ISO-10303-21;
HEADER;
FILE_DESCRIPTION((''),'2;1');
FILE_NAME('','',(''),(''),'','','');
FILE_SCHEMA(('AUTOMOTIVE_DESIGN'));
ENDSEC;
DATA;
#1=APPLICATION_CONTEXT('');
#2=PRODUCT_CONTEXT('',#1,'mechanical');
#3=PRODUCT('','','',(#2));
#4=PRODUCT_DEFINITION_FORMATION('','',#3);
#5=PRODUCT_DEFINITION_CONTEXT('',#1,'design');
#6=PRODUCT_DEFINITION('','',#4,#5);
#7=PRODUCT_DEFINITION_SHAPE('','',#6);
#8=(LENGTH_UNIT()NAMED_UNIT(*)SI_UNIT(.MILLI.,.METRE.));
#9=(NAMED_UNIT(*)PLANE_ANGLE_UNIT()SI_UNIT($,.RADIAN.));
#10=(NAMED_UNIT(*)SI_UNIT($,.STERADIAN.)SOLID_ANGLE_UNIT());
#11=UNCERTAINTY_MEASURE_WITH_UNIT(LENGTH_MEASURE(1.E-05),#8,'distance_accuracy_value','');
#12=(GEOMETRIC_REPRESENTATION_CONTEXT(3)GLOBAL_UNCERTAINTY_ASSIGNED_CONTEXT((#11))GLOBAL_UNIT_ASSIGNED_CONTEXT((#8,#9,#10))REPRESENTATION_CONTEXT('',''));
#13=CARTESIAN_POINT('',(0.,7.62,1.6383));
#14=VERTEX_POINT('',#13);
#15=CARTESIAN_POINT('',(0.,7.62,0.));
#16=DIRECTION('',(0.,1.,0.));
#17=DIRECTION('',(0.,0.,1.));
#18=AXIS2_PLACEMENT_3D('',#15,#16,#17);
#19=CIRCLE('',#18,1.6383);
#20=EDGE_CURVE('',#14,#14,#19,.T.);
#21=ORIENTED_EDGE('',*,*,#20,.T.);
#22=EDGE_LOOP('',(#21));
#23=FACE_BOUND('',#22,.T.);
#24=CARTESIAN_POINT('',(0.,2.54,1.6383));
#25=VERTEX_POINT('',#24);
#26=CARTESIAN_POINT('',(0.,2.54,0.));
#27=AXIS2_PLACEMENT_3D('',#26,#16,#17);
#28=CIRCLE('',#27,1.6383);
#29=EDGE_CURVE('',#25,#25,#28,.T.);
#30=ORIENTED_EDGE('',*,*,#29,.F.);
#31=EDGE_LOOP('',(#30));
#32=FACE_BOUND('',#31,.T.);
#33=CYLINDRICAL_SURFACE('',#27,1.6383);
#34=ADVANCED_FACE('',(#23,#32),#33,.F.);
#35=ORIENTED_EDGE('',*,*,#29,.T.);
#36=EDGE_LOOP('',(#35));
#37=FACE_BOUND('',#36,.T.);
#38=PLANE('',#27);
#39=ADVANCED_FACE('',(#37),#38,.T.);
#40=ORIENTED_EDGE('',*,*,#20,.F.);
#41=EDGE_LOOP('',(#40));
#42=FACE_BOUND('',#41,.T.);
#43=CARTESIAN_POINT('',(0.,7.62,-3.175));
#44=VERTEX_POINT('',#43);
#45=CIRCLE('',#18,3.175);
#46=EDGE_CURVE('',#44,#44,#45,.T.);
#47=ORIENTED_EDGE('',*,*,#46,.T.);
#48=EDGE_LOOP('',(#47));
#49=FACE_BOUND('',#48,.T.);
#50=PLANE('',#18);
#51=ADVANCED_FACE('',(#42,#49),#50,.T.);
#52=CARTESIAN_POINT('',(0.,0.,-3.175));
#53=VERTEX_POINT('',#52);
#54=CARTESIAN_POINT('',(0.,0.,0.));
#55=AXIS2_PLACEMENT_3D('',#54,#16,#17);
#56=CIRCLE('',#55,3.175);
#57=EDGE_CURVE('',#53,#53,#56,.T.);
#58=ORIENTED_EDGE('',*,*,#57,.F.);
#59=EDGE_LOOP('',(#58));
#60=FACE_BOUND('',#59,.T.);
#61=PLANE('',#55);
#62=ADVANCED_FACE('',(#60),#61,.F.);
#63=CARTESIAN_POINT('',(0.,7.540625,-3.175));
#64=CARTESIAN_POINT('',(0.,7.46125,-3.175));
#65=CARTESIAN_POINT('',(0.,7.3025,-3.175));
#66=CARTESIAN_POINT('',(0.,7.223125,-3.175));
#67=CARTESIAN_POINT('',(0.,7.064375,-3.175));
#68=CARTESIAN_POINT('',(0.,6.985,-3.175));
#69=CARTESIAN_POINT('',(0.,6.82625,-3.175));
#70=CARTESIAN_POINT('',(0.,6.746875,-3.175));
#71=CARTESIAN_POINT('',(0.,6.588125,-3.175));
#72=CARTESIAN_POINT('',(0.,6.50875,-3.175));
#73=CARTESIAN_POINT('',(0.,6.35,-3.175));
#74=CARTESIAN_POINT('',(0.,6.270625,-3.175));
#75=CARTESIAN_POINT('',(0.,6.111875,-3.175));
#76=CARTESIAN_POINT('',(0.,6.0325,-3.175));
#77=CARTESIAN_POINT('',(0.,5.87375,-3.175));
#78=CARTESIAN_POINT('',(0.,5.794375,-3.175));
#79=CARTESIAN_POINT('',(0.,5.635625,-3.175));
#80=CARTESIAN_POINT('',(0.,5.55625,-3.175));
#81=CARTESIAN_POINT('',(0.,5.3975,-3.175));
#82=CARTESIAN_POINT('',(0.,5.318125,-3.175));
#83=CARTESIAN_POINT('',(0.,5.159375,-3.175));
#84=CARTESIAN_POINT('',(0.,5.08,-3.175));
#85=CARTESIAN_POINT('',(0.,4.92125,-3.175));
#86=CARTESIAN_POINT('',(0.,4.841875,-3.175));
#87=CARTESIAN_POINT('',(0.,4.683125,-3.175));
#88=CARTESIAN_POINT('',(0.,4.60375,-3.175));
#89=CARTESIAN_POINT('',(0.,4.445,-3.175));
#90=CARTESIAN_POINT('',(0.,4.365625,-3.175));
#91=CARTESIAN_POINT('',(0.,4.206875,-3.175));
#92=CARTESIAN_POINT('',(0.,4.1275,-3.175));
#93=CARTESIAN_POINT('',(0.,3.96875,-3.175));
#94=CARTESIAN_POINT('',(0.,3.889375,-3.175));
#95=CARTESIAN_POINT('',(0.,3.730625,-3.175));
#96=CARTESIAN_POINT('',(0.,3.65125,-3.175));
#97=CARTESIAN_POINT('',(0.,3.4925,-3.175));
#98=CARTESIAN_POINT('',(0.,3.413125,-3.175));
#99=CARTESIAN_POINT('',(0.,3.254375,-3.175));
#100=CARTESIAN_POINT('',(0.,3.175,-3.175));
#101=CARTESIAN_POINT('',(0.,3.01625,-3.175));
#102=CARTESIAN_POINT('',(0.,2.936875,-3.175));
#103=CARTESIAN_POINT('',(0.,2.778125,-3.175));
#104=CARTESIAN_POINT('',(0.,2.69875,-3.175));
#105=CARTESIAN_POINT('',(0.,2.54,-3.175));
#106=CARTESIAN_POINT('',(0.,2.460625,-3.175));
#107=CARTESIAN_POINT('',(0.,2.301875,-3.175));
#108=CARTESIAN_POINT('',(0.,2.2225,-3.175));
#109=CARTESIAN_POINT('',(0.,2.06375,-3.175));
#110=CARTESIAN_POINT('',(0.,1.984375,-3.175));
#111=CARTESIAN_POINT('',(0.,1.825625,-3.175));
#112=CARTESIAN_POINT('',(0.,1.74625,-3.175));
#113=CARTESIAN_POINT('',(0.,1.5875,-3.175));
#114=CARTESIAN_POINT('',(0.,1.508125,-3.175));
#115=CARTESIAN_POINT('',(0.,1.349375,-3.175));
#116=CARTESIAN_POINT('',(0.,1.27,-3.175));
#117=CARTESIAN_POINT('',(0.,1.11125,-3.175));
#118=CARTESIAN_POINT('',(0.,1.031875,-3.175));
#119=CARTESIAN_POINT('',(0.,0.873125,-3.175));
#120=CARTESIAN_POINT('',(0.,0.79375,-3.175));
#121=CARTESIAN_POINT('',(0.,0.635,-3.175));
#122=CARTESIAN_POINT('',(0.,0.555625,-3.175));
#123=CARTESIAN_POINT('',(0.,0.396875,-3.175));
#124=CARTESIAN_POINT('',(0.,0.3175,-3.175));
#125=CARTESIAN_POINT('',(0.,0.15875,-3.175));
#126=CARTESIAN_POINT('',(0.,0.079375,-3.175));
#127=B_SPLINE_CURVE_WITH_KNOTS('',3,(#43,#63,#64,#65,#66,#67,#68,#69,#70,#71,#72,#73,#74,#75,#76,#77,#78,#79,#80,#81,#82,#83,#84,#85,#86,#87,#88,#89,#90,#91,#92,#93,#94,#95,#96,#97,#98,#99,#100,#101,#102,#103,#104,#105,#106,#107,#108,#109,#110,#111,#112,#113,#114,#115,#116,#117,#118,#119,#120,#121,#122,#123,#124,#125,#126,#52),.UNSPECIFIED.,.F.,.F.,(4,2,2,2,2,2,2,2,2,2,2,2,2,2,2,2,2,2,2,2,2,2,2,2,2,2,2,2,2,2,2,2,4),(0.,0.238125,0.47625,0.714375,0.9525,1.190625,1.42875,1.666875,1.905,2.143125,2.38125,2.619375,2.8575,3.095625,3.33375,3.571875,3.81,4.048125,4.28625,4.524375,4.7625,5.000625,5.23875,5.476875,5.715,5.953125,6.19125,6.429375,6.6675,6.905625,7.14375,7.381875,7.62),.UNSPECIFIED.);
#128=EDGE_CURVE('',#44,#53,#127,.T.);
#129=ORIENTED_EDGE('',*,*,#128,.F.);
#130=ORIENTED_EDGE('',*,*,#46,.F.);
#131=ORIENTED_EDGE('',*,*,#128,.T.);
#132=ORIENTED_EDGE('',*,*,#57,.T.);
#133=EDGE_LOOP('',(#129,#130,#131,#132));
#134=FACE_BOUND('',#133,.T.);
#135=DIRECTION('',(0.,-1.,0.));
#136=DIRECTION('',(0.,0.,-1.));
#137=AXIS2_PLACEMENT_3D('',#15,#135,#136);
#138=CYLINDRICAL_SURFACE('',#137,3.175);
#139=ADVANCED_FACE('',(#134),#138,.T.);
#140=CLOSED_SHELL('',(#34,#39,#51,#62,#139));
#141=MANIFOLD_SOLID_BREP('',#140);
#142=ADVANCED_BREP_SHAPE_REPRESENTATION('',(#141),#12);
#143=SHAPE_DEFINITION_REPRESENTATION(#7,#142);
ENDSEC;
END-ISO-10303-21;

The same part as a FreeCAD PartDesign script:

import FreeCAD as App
import Part
import Sketcher

V = App.Vector
Q = App.Units.Quantity

doc = App.newDocument("Part")
body = doc.addObject("PartDesign::Body", "Body")

sketch1 = doc.addObject("Sketcher::SketchObject", "Sketch")
body.addObject(sketch1)
sketch1.AttachmentSupport = (doc.XZ_Plane, [""])
sketch1.MapMode = "FlatFace"
sketch1.addGeometry(Part.Circle(V(0, 0, 0), V(0, 0, 1), 3.175), False)
sketch1.addConstraint(Sketcher.Constraint("Coincident", 0, 3, -1, 1))
sketch1.addConstraint(Sketcher.Constraint("Diameter", 0, Q("0.25 in")))
pad1 = doc.addObject("PartDesign::Pad", "Pad")
body.addObject(pad1)
pad1.Profile = sketch1
pad1.Length = Q("0.3 in")
pad1.Reversed = True

sketch2 = doc.addObject("Sketcher::SketchObject", "Sketch001")
body.addObject(sketch2)
sketch2.AttachmentSupport = (doc.XZ_Plane, [""])
sketch2.MapMode = "FlatFace"
sketch2.AttachmentOffset = App.Placement(V(0, 0, -0.3 * 25.4), App.Rotation())
sketch2.addGeometry(Part.Circle(V(0, 0, 0), V(0, 0, 1), 1.6383), False)
sketch2.addConstraint(Sketcher.Constraint("Coincident", 0, 3, -1, 1))
sketch2.addConstraint(Sketcher.Constraint("Diameter", 0, Q("0.129 in")))
pocket1 = doc.addObject("PartDesign::Pocket", "Pocket")
body.addObject(pocket1)
pocket1.Profile = sketch2
pocket1.Length = Q("0.2 in")
pocket1.Reversed = True

doc.recompute()
